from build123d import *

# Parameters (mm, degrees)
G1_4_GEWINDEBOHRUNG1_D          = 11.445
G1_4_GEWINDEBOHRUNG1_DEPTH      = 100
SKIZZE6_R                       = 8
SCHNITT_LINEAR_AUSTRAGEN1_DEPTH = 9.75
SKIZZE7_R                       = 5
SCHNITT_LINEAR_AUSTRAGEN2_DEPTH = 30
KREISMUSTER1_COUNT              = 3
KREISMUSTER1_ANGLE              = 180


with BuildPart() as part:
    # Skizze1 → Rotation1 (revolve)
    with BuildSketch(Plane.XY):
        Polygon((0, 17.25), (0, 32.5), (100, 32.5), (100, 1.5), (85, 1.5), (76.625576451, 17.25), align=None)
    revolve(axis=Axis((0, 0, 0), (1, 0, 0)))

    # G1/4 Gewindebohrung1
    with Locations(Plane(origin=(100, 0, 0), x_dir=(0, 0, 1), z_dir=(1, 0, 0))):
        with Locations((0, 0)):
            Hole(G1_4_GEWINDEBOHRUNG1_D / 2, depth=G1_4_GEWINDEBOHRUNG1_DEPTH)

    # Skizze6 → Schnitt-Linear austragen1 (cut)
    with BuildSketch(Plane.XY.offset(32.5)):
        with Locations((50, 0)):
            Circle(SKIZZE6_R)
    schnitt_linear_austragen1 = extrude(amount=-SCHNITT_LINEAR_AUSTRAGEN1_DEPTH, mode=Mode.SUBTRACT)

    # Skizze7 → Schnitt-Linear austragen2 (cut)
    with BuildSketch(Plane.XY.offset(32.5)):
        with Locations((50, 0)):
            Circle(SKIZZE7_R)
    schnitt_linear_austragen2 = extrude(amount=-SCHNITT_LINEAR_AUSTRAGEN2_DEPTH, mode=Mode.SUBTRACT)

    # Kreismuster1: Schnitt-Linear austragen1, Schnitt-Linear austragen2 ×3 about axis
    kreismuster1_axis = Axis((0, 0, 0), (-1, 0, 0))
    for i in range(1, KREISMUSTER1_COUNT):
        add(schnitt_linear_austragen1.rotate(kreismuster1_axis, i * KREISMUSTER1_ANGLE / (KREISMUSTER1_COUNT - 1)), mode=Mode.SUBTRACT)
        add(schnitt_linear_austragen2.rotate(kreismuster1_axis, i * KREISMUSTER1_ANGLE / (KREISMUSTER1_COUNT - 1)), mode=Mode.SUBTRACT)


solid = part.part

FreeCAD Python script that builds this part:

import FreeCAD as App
import Part
import Sketcher
from FreeCAD import Vector
Q = App.Units.Quantity


def add_polygon(sketch, points):
    """Adds a closed chain of lines whose ends are joined by coincident constraints."""
    first, n = sketch.GeometryCount, len(points)
    for a, b in zip(points, points[1:] + points[:1]):
        sketch.addGeometry(Part.LineSegment(App.Vector(*a, 0), App.Vector(*b, 0)), False)
    for i in range(n):
        sketch.addConstraint(Sketcher.Constraint("Coincident", first + i, 2, first + (i + 1) % n, 1))

doc = App.newDocument("Part")
body = doc.addObject("PartDesign::Body", "Body")

sketch1 = body.newObject("Sketcher::SketchObject", "Sketch")
sketch1.AttachmentSupport = (doc.getObject("XY_Plane"), [""])
sketch1.MapMode = "FlatFace"
add_polygon(sketch1, [(0, 32), (0, 17), (77, 17), (85, 2), (100, 2), (100, 32)])
sketch1.addConstraint(Sketcher.Constraint("Vertical", 0))
sketch1.addConstraint(Sketcher.Constraint("Horizontal", 1))
sketch1.addConstraint(Sketcher.Constraint("Horizontal", 3))
sketch1.addConstraint(Sketcher.Constraint("Vertical", 4))
sketch1.addConstraint(Sketcher.Constraint("Horizontal", 5))
sketch1.addConstraint(Sketcher.Constraint("PointOnObject", 0, 2, -2))
sketch1.addConstraint(Sketcher.Constraint("DistanceX", 3, 1, 3, 2, Q("15 mm")))
sketch1.addConstraint(Sketcher.Constraint("DistanceX", 5, 2, 5, 1, Q("100 mm")))
sketch1.addConstraint(Sketcher.Constraint("DistanceY", 4, 1, 4, 2, Q("31 mm")))
sketch1.addConstraint(Sketcher.Constraint("Angle", 2, Q("-62 deg")))
sketch1.addConstraint(Sketcher.Constraint("DistanceY", 0, 2, 0, 1, Q("15.25 mm")))
sketch1.addConstraint(Sketcher.Constraint("DistanceY", -1, 1, 2, 2, Q("1.5 mm")))
revolution = body.newObject("PartDesign::Revolution", "Revolution")
revolution.Profile = sketch1
revolution.ReferenceAxis = (sketch1, ["H_Axis"])
revolution.Angle = 360

sketch2 = body.newObject("Sketcher::SketchObject", "Sketch001")
sketch2.AttachmentSupport = (doc.getObject("YZ_Plane"), [""])
sketch2.MapMode = "FlatFace"
sketch2.AttachmentOffset = App.Placement(Vector(0, 0, 100), App.Rotation())
sketch2.addGeometry(Part.Circle(Vector(0, 0, 0), Vector(0, 0, 1), 6), False)
sketch2.addConstraint(Sketcher.Constraint("Coincident", 0, 3, -1, 1))
sketch2.addConstraint(Sketcher.Constraint("Diameter", 0, Q("11.445 mm")))
doc.recompute()
hole = body.newObject("PartDesign::Hole", "Hole")
hole.Profile = sketch2
hole.ThreadType = "None"
hole.Diameter = 11.445
hole.DepthType = "Dimension"
hole.Depth = 100
hole.DrillPoint = "Flat"

sketch3 = body.newObject("Sketcher::SketchObject", "Sketch002")
sketch3.AttachmentSupport = (doc.getObject("XY_Plane"), [""])
sketch3.MapMode = "FlatFace"
sketch3.AttachmentOffset = App.Placement(Vector(0, 0, 32.5), App.Rotation())
sketch3.addGeometry(Part.Circle(Vector(50, 0, 0), Vector(0, 0, 1), 8), False)
sketch3.addConstraint(Sketcher.Constraint("PointOnObject", 0, 3, -1))
sketch3.addConstraint(Sketcher.Constraint("Diameter", 0, Q("16 mm")))
sketch3.addConstraint(Sketcher.Constraint("DistanceX", -1, 1, 0, 3, Q("50 mm")))
pocket1 = body.newObject("PartDesign::Pocket", "Pocket")
pocket1.Profile = sketch3
pocket1.Length = 9.75

sketch4 = body.newObject("Sketcher::SketchObject", "Sketch003")
sketch4.AttachmentSupport = (doc.getObject("XY_Plane"), [""])
sketch4.MapMode = "FlatFace"
sketch4.AttachmentOffset = App.Placement(Vector(0, 0, 32.5), App.Rotation())
sketch4.addGeometry(Part.Circle(Vector(50, 0, 0), Vector(0, 0, 1), 5), False)
sketch4.addConstraint(Sketcher.Constraint("PointOnObject", 0, 3, -1))
sketch4.addConstraint(Sketcher.Constraint("Diameter", 0, Q("10 mm")))
sketch4.addConstraint(Sketcher.Constraint("DistanceX", -1, 1, 0, 3, Q("50 mm")))
pocket2 = body.newObject("PartDesign::Pocket", "Pocket001")
pocket2.Profile = sketch4
pocket2.Length = 30
doc.recompute()

polarpattern = body.newObject("PartDesign::PolarPattern", "PolarPattern")
polarpattern.Originals = [pocket1, pocket2]
polarpattern.Axis = (doc.getObject("X_Axis"), [""])
polarpattern.Angle = 180
polarpattern.Occurrences = 3
polarpattern.Reversed = True
body.Tip = polarpattern

doc.recompute()
